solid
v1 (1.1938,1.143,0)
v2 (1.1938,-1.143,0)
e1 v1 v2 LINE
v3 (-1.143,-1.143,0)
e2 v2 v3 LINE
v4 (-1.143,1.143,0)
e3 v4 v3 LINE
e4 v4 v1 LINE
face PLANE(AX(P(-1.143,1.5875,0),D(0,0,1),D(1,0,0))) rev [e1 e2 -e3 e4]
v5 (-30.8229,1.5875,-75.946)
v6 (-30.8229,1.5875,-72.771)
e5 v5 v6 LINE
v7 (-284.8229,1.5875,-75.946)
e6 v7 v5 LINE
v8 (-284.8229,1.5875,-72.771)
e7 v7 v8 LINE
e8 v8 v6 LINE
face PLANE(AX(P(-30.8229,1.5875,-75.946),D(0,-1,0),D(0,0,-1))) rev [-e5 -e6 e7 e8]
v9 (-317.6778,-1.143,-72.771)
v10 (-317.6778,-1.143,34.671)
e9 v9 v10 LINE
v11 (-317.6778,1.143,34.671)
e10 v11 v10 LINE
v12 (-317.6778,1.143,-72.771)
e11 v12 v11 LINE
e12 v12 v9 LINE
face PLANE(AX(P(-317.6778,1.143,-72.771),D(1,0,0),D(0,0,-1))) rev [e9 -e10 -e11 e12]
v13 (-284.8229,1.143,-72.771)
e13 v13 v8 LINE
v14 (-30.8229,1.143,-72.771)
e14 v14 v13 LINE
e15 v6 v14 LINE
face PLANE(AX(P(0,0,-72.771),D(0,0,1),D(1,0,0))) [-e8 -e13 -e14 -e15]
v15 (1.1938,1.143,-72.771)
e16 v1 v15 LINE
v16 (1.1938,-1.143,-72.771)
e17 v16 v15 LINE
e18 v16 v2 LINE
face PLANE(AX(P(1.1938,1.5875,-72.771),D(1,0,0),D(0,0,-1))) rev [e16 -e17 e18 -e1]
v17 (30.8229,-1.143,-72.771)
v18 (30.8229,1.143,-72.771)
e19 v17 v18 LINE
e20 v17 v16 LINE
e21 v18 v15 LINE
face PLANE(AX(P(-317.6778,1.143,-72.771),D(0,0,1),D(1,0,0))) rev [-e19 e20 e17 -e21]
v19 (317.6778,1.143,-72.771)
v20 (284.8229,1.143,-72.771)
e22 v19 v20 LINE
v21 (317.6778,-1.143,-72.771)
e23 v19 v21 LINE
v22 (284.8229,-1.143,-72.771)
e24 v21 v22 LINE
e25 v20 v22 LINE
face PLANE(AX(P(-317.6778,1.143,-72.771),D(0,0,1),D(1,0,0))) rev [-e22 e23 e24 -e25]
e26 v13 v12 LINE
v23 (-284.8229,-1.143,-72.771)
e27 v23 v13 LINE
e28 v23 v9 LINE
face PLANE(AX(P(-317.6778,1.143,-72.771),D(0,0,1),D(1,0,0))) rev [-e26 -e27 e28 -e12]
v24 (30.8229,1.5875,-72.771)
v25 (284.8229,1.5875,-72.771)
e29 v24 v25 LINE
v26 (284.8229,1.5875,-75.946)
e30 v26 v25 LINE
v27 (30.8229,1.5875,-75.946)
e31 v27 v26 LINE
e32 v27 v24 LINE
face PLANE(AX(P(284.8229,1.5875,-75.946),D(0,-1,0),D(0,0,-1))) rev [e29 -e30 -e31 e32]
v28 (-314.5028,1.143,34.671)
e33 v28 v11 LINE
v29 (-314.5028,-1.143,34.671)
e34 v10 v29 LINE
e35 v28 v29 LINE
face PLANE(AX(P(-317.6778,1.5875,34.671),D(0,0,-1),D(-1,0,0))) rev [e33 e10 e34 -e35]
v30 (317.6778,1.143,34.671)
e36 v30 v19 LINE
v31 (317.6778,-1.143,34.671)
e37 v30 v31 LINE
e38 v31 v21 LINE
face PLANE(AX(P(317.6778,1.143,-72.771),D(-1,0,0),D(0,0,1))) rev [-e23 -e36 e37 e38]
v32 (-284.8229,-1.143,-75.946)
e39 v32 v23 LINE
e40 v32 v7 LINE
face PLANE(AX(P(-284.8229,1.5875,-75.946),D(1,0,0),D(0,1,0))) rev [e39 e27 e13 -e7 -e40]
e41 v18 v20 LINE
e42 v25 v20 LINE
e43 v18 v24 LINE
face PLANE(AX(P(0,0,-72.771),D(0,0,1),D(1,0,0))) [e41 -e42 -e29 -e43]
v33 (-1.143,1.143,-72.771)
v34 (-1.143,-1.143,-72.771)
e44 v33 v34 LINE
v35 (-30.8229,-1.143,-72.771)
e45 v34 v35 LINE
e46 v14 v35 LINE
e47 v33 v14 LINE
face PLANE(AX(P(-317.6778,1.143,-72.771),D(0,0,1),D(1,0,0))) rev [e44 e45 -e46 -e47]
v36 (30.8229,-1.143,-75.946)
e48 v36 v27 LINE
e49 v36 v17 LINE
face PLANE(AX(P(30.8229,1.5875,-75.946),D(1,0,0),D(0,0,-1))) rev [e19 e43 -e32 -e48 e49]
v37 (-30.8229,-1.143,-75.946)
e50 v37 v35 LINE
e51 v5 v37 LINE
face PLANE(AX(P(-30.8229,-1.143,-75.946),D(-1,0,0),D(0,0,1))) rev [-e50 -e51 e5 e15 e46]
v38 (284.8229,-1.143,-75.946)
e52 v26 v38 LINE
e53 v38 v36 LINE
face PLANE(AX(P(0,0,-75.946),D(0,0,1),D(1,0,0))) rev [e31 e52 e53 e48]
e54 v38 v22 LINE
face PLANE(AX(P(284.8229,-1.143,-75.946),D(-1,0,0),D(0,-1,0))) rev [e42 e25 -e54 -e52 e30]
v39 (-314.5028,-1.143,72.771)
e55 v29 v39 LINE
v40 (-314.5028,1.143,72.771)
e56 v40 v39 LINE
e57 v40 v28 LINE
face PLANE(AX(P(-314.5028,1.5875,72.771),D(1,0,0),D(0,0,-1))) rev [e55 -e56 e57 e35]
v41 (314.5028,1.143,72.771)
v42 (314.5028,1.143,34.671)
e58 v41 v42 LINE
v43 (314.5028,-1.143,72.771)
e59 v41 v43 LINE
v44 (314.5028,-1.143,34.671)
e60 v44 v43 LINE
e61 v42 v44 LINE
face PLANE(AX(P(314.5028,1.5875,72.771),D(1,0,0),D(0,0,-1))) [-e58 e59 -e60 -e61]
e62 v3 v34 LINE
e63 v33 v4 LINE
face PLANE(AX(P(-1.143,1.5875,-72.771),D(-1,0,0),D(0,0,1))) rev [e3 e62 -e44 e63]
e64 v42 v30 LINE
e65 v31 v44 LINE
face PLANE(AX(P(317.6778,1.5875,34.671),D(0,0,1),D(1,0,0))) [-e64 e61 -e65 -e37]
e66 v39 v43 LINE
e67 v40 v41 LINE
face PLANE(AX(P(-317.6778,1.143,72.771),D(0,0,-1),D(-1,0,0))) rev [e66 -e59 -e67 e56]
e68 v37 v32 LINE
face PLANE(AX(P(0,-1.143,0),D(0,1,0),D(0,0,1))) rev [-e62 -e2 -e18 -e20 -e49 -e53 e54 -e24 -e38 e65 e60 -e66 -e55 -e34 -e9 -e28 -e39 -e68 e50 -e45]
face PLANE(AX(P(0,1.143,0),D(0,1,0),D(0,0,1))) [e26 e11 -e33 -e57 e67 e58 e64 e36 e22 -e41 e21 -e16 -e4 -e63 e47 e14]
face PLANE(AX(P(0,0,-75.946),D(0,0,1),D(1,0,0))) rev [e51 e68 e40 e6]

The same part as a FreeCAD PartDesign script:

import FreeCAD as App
import Part
import Sketcher
Q = App.Units.Quantity


def add_polygon(sketch, points):
    """Adds a closed chain of lines whose ends are joined by coincident constraints."""
    first, n = sketch.GeometryCount, len(points)
    for a, b in zip(points, points[1:] + points[:1]):
        sketch.addGeometry(Part.LineSegment(App.Vector(*a, 0), App.Vector(*b, 0)), False)
    for i in range(n):
        sketch.addConstraint(Sketcher.Constraint("Coincident", first + i, 2, first + (i + 1) % n, 1))

doc = App.newDocument("Part")
body = doc.addObject("PartDesign::Body", "Body")

# Sketch on XZ plane
sketch1 = doc.addObject("Sketcher::SketchObject", "Sketch")
body.addObject(sketch1)
sketch1.AttachmentSupport = (doc.XZ_Plane, [""])
sketch1.MapMode = "FlatFace"
add_polygon(sketch1, [(-318, -73), (-318, 73), (318, 73), (318, -73)])  # lines 0-3
sketch1.addConstraint(Sketcher.Constraint("Vertical", 0))
sketch1.addConstraint(Sketcher.Constraint("Horizontal", 1))
sketch1.addConstraint(Sketcher.Constraint("Vertical", 2))
sketch1.addConstraint(Sketcher.Constraint("Horizontal", 3))
sketch1.addConstraint(Sketcher.Constraint("Symmetric", 0, 2, 2, 2, -1, 1))
sketch1.addConstraint(Sketcher.Constraint("DistanceY", 0, 1, 0, 2, Q("5.73 in")))
sketch1.addConstraint(Sketcher.Constraint("DistanceX", 1, 1, 1, 2, Q("25.014 in")))
pad1 = doc.addObject("PartDesign::Pad", "Pad")
body.addObject(pad1)
pad1.Profile = sketch1
pad1.Length = Q("0.09 in")
pad1.Midplane = True

# Sketch on XY plane
sketch2 = doc.addObject("Sketcher::SketchObject", "Sketch001")
body.addObject(sketch2)
sketch2.AttachmentSupport = (doc.XY_Plane, [""])
sketch2.MapMode = "FlatFace"
sketch2.AttachmentOffset = App.Placement(App.Vector(0, 0, -2.865 * 25.4), App.Rotation())
add_polygon(sketch2, [(284.8, 1.6), (284.8, -1.1), (30.8, -1.1), (30.8, 1.6)])  # lines 0-3
add_polygon(sketch2, [(-30.8, 1.6), (-30.8, -1.1), (-284.8, -1.1), (-284.8, 1.6)])  # lines 4-7
sketch2.addConstraint(Sketcher.Constraint("Vertical", 0))
sketch2.addConstraint(Sketcher.Constraint("Horizontal", 1))
sketch2.addConstraint(Sketcher.Constraint("Vertical", 2))
sketch2.addConstraint(Sketcher.Constraint("Horizontal", 3))
sketch2.addConstraint(Sketcher.Constraint("Vertical", 4))
sketch2.addConstraint(Sketcher.Constraint("Horizontal", 5))
sketch2.addConstraint(Sketcher.Constraint("Vertical", 6))
sketch2.addConstraint(Sketcher.Constraint("Horizontal", 7))
sketch2.addConstraint(Sketcher.Constraint("Symmetric", 1, 2, 4, 2, -2))
sketch2.addConstraint(Sketcher.Constraint("Symmetric", 3, 2, 6, 2, -2))
sketch2.addConstraint(Sketcher.Constraint("DistanceX", 1, 2, 1, 1, Q("10 in")))
sketch2.addConstraint(Sketcher.Constraint("DistanceY", 0, 2, 0, 1, Q("0.1075 in")))
sketch2.addConstraint(Sketcher.Constraint("DistanceY", 0, 2, -1, 1, Q("0.045 in")))
sketch2.addConstraint(Sketcher.Constraint("DistanceX", 4, 2, 1, 2, Q("2.427 in")))
pad2 = doc.addObject("PartDesign::Pad", "Pad001")
body.addObject(pad2)
pad2.Profile = sketch2
pad2.Length = Q("0.125 in")
pad2.Reversed = True

# Sketch on XZ plane
sketch3 = doc.addObject("Sketcher::SketchObject", "Sketch002")
body.addObject(sketch3)
sketch3.AttachmentSupport = (doc.XZ_Plane, [""])
sketch3.MapMode = "FlatFace"
sketch3.AttachmentOffset = App.Placement(App.Vector(0, 0, 0.045 * 25.4), App.Rotation())
add_polygon(sketch3, [(-317.7, 72.8), (-317.7, 34.7), (-314.5, 34.7), (-314.5, 72.8)])  # lines 0-3
sketch3.addConstraint(Sketcher.Constraint("Vertical", 0))
sketch3.addConstraint(Sketcher.Constraint("Horizontal", 1))
sketch3.addConstraint(Sketcher.Constraint("Vertical", 2))
sketch3.addConstraint(Sketcher.Constraint("Horizontal", 3))
sketch3.addConstraint(Sketcher.Constraint("DistanceY", 0, 2, 0, 1, Q("1.5 in")))
sketch3.addConstraint(Sketcher.Constraint("DistanceX", 1, 1, 1, 2, Q("0.125 in")))
sketch3.addConstraint(Sketcher.Constraint("DistanceX", 0, 2, -1, 1, Q("12.507 in")))
sketch3.addConstraint(Sketcher.Constraint("DistanceY", -1, 1, 0, 2, Q("1.365 in")))
pocket1 = doc.addObject("PartDesign::Pocket", "Pocket")
body.addObject(pocket1)
pocket1.Profile = sketch3
pocket1.Type = "ThroughAll"
doc.recompute()

mirrored = doc.addObject("PartDesign::Mirrored", "Mirrored")
body.addObject(mirrored)
mirrored.Originals = [pocket1]
mirrored.MirrorPlane = (doc.YZ_Plane, [""])
body.Tip = mirrored

# Sketch on XZ plane
sketch4 = doc.addObject("Sketcher::SketchObject", "Sketch003")
body.addObject(sketch4)
sketch4.AttachmentSupport = (doc.XZ_Plane, [""])
sketch4.MapMode = "FlatFace"
sketch4.AttachmentOffset = App.Placement(App.Vector(0, 0, 0.045 * 25.4), App.Rotation())
add_polygon(sketch4, [(-1.1, 0), (-1.1, -72.8), (1.2, -72.8), (1.2, 0)])  # lines 0-3
sketch4.addConstraint(Sketcher.Constraint("Vertical", 0))
sketch4.addConstraint(Sketcher.Constraint("Horizontal", 1))
sketch4.addConstraint(Sketcher.Constraint("Vertical", 2))
sketch4.addConstraint(Sketcher.Constraint("Horizontal", 3))
sketch4.addConstraint(Sketcher.Constraint("PointOnObject", 2, 2, -1))
sketch4.addConstraint(Sketcher.Constraint("DistanceX", 1, 1, 1, 2, Q("0.092 in")))
sketch4.addConstraint(Sketcher.Constraint("DistanceY", 0, 2, 0, 1, Q("2.865 in")))
sketch4.addConstraint(Sketcher.Constraint("DistanceX", 0, 2, -1, 1, Q("0.045 in")))
pocket2 = doc.addObject("PartDesign::Pocket", "Pocket001")
body.addObject(pocket2)
pocket2.Profile = sketch4
pocket2.Type = "ThroughAll"

doc.recompute()
